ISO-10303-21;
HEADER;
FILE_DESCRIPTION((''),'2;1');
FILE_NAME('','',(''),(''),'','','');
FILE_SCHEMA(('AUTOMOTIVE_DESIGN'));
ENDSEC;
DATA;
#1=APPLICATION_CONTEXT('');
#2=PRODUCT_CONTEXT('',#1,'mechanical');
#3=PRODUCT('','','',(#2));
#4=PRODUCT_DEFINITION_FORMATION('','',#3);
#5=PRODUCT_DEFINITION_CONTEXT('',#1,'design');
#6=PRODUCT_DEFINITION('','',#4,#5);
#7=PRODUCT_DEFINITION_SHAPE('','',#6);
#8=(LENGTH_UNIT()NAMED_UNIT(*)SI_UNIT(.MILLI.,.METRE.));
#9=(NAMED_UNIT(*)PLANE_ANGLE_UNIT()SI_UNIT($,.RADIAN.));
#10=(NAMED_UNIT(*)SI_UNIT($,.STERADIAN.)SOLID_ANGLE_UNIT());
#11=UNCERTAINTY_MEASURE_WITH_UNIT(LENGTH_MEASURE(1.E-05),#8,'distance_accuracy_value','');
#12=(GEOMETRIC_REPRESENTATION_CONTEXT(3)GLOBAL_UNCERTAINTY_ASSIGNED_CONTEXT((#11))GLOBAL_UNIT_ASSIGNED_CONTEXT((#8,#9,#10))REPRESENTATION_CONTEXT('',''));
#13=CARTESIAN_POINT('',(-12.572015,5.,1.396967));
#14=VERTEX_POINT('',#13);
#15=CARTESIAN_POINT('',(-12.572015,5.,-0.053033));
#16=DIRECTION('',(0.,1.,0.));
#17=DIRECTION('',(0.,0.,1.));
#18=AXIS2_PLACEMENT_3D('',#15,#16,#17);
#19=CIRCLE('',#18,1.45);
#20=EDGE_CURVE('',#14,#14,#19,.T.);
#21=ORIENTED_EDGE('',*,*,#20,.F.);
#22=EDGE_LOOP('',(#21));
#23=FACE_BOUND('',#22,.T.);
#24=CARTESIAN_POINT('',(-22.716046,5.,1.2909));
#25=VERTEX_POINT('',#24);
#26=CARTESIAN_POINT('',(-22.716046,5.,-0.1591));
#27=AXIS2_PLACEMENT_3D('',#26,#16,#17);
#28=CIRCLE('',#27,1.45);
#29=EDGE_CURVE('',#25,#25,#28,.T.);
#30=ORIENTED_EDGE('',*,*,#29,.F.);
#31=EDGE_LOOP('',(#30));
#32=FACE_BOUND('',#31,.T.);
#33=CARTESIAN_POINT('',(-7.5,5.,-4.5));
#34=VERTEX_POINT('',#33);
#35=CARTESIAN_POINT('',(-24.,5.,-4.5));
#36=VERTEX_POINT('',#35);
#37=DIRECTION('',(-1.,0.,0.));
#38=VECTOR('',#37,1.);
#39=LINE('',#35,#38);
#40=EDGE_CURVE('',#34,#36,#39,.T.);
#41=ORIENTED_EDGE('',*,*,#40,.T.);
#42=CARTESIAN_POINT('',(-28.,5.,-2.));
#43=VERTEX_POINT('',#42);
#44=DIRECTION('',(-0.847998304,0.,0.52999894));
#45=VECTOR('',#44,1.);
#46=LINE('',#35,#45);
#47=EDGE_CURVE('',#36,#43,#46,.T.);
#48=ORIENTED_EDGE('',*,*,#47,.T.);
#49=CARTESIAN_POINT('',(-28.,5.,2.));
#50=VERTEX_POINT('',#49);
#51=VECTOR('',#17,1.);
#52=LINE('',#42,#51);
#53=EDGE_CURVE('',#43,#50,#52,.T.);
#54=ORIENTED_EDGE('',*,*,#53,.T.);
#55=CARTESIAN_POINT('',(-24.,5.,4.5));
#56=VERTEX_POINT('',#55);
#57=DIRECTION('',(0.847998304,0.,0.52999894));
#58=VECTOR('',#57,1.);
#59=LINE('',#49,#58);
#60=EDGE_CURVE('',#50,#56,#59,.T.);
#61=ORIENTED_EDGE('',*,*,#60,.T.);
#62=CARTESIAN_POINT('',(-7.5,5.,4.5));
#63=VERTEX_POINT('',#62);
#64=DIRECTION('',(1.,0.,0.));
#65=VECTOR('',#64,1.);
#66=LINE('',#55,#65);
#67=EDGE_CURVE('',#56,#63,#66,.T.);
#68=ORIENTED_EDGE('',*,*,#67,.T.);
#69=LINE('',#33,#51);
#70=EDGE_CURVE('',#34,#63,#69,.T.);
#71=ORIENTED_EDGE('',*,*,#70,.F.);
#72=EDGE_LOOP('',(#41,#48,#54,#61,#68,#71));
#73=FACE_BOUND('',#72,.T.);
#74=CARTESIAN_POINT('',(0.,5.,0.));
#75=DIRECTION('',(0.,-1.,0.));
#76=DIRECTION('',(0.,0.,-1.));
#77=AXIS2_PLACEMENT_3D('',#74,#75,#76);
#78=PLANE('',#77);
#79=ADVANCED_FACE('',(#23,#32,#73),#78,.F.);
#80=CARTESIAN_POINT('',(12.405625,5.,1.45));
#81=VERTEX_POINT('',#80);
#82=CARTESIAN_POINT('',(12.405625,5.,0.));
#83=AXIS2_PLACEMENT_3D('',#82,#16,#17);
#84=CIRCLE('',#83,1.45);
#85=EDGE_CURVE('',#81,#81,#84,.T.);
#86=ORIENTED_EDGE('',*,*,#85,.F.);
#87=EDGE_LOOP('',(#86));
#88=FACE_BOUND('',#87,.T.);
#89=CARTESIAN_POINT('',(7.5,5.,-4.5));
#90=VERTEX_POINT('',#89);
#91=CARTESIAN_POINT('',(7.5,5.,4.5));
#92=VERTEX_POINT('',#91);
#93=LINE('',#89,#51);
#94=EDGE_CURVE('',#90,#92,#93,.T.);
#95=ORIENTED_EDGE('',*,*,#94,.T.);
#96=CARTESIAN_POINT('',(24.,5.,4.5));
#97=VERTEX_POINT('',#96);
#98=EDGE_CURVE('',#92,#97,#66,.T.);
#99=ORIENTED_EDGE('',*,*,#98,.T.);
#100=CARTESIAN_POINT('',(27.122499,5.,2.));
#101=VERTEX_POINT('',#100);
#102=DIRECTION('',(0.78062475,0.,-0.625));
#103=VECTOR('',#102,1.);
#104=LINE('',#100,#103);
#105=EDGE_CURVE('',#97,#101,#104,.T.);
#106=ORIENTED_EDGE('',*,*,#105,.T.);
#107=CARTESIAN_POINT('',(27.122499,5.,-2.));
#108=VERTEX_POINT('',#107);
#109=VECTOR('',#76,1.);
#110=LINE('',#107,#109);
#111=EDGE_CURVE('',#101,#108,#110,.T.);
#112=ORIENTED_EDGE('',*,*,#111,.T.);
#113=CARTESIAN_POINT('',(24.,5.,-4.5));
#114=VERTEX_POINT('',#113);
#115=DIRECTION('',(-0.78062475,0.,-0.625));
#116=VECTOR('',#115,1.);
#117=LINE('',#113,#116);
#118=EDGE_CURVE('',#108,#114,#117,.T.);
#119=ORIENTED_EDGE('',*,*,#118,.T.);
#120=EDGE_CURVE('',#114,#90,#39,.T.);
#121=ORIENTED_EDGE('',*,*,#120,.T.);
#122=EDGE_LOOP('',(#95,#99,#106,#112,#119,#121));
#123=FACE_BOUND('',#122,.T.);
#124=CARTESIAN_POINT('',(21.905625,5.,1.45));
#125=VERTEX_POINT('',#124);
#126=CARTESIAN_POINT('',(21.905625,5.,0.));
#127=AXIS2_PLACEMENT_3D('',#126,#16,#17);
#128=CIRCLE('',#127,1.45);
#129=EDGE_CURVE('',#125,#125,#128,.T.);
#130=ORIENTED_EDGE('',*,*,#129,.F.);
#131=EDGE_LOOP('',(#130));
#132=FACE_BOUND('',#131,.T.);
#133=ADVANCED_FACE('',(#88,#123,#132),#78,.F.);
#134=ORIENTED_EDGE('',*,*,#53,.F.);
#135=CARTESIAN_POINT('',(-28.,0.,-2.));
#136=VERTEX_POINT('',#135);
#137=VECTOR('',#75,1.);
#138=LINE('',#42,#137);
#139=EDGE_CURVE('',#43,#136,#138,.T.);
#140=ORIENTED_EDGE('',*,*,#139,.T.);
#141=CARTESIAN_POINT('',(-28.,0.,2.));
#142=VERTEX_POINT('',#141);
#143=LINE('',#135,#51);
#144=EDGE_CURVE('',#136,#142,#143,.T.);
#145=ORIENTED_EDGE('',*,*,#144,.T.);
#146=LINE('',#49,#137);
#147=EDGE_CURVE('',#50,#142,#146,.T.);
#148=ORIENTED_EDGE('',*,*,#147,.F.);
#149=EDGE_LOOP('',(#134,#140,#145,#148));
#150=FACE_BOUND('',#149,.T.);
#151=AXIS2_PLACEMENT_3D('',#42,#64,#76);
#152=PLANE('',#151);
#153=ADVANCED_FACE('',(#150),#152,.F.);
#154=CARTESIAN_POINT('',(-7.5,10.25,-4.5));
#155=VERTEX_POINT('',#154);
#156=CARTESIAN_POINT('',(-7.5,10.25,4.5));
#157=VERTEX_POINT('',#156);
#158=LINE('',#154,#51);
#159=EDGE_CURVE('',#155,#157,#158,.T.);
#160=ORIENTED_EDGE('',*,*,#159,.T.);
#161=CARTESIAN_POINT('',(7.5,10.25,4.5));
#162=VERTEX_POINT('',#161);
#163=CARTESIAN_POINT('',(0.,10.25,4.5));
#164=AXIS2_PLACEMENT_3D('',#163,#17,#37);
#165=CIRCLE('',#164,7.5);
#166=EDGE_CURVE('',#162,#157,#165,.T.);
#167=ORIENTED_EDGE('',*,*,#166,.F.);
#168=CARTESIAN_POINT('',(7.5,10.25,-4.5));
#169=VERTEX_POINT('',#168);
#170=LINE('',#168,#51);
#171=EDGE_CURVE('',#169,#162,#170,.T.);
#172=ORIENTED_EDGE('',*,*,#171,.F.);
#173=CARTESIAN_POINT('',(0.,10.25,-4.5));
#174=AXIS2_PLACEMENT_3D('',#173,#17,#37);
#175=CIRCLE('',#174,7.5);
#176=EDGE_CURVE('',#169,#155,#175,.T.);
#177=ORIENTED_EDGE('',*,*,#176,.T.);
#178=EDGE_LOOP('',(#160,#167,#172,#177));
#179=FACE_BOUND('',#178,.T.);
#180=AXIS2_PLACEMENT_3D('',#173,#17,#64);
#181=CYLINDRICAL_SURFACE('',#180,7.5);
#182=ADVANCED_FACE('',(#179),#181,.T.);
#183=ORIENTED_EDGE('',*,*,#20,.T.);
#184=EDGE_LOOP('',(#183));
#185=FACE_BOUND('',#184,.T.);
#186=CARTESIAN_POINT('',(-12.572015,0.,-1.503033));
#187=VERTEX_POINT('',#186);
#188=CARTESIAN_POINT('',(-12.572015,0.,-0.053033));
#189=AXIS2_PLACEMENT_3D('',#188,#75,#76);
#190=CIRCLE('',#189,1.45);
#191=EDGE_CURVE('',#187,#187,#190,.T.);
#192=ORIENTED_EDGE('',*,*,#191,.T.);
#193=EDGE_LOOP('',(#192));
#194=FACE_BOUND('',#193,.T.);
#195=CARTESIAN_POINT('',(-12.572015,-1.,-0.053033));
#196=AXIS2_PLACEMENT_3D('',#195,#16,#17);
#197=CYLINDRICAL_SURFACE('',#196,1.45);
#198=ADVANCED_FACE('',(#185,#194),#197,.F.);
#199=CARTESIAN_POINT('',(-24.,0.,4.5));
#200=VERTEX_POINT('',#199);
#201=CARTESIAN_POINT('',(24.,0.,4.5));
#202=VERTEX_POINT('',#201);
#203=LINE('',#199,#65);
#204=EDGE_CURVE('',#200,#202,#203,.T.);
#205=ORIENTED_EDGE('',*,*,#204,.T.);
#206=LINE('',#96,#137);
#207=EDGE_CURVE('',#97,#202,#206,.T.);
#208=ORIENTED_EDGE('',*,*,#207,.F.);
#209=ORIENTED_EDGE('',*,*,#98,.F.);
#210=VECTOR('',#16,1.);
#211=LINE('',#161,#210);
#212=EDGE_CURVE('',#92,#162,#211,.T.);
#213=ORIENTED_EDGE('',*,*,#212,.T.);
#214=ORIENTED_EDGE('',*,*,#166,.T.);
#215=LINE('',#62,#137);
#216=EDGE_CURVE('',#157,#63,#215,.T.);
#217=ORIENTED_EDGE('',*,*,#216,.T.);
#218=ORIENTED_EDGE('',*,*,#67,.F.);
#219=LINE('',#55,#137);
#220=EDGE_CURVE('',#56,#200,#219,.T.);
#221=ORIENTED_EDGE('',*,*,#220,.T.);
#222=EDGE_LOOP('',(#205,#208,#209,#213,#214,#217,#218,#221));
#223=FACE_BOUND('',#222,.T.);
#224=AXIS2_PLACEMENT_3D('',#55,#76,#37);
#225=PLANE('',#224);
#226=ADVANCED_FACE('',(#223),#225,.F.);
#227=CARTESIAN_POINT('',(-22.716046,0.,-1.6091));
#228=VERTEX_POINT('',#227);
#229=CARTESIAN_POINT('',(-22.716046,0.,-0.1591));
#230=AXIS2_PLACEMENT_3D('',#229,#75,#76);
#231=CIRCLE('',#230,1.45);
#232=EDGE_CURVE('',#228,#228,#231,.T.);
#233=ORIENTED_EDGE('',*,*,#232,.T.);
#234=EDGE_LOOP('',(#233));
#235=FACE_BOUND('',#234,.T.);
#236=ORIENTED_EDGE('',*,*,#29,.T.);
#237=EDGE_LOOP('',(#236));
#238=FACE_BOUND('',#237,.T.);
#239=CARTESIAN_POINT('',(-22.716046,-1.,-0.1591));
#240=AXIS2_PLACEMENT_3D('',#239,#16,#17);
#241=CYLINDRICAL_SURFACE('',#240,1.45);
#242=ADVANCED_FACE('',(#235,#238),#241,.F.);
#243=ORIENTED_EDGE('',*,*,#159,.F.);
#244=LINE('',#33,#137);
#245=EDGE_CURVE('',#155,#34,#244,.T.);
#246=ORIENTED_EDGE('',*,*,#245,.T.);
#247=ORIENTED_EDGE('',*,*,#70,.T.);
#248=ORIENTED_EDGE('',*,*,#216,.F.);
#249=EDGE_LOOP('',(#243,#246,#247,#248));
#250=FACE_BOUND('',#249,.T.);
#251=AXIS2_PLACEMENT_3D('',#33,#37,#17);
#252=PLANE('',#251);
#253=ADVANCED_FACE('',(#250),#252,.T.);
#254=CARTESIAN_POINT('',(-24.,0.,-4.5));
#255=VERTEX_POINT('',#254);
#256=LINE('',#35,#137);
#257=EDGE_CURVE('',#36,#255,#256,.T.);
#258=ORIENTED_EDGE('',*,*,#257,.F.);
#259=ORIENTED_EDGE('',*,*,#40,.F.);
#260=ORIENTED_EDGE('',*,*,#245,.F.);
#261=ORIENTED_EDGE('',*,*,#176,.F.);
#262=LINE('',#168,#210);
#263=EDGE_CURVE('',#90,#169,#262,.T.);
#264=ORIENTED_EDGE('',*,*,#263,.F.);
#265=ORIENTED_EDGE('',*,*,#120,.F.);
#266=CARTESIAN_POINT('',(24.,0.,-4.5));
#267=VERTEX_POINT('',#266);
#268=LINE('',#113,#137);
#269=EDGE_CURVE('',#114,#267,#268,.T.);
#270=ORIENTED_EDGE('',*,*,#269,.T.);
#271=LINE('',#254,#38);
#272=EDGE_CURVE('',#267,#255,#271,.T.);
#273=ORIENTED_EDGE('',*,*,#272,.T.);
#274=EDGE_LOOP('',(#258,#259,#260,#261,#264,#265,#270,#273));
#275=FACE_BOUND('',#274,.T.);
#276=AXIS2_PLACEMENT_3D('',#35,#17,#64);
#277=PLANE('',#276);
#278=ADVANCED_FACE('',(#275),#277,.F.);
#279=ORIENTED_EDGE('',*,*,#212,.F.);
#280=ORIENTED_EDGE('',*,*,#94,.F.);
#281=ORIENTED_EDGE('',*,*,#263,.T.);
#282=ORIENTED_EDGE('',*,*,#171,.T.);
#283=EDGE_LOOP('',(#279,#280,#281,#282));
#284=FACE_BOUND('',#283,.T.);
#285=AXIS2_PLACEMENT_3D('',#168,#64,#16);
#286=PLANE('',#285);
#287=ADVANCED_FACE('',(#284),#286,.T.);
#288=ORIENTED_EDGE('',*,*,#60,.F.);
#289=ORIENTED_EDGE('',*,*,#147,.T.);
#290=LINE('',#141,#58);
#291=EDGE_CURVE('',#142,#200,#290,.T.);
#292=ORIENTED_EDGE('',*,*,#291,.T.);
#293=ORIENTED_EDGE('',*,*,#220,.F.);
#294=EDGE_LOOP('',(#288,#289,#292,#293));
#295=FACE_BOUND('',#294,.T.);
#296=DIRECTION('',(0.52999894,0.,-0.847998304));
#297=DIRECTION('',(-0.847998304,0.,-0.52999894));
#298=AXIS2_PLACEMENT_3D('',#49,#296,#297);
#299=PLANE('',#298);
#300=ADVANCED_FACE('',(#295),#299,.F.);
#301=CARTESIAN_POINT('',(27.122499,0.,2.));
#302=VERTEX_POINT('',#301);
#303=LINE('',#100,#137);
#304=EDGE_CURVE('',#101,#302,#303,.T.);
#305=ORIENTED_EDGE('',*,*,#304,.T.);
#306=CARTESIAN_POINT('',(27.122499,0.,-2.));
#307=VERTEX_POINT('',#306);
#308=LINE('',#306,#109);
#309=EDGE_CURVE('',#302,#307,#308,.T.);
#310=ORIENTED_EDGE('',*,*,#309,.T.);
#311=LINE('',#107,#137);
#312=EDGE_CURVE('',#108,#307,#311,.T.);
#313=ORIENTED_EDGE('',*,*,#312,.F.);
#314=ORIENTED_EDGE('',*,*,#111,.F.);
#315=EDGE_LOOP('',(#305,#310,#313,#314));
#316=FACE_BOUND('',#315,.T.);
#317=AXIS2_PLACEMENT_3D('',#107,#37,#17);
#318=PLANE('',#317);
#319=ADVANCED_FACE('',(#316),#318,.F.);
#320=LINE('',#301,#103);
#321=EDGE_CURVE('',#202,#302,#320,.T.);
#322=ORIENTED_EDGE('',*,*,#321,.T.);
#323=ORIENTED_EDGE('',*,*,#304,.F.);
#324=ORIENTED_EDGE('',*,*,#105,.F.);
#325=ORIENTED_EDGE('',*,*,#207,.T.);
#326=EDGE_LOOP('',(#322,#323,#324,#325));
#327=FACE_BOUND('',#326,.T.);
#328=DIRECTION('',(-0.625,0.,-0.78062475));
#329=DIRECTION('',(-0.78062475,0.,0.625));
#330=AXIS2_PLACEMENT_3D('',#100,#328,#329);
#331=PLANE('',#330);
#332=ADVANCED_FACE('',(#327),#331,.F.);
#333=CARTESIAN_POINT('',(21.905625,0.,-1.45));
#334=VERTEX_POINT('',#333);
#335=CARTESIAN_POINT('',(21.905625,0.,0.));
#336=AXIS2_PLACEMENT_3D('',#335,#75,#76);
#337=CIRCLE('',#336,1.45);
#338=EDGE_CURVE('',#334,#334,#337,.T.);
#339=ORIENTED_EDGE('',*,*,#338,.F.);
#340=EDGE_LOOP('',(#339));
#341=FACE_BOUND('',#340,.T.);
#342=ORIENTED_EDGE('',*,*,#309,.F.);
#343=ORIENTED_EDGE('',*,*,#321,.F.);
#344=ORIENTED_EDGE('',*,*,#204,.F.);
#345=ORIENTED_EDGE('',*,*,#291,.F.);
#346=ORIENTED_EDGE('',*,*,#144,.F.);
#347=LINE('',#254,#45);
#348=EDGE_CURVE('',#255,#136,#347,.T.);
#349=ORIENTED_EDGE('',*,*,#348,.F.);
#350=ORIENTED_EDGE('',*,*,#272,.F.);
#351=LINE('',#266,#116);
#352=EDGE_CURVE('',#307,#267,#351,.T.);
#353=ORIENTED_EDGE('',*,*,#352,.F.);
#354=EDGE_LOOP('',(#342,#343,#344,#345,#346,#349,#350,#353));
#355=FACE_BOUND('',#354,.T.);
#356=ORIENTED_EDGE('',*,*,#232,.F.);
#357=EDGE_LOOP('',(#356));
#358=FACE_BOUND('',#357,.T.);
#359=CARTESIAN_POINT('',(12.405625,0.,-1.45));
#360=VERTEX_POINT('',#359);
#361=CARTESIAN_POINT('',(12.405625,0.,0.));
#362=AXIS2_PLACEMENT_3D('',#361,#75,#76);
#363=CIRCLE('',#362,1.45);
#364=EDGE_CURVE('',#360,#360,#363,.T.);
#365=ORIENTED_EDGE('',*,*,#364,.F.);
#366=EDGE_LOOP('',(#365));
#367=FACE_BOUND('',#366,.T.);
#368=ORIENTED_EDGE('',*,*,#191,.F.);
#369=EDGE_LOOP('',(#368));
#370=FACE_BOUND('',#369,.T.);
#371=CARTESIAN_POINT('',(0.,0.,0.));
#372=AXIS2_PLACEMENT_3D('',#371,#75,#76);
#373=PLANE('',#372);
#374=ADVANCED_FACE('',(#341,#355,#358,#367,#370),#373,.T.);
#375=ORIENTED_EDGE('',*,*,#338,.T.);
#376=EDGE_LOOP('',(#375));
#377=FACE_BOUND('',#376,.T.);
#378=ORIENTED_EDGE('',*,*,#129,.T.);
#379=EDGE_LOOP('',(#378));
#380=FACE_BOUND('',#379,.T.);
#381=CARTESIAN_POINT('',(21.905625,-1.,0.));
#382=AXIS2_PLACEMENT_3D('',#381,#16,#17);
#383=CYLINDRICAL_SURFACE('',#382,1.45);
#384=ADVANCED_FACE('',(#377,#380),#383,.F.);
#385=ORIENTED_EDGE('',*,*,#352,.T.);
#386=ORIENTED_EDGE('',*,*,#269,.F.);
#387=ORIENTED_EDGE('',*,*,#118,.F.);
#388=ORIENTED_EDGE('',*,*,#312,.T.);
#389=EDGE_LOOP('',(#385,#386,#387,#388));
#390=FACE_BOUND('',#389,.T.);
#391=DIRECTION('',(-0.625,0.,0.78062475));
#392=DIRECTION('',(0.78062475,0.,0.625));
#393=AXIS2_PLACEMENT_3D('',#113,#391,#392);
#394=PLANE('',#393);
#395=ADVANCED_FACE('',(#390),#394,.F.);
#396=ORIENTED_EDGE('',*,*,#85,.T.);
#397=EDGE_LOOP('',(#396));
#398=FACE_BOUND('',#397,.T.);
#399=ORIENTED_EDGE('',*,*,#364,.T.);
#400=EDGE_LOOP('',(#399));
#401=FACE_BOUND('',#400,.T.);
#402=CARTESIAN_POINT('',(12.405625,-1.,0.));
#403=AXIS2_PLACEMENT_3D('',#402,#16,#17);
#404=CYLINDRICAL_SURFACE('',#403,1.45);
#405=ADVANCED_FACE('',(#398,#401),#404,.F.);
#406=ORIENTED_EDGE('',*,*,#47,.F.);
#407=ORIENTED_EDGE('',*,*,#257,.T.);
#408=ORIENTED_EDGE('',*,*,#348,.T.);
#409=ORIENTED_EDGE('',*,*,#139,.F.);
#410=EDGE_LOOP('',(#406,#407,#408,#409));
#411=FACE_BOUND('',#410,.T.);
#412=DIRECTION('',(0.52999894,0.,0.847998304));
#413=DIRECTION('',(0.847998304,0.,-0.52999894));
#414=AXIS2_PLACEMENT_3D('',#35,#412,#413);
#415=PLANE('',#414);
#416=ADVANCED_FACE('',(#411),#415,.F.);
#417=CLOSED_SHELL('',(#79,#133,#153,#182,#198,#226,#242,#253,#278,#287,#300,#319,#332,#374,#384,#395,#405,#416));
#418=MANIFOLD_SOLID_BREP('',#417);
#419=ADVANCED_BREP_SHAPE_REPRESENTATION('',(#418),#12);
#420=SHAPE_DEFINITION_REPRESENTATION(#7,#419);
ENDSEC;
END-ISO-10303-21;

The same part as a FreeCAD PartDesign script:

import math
import FreeCAD as App
import Part
import Sketcher

V = App.Vector
Q = App.Units.Quantity

doc = App.newDocument("Part")
body = doc.addObject("PartDesign::Body", "Body")

sketch1 = doc.addObject("Sketcher::SketchObject", "Sketch")
body.addObject(sketch1)
sketch1.AttachmentSupport = (doc.XZ_Plane, [""])
sketch1.MapMode = "FlatFace"
sketch1.addGeometry([
    Part.LineSegment(V(27.1, -2, 0), V(24, -4.5, 0)),
    Part.LineSegment(V(24, -4.5, 0), V(-24, -4.5, 0)),
    Part.LineSegment(V(-24, -4.5, 0), V(-28, -2, 0)),
    Part.LineSegment(V(-28, -2, 0), V(-28, 2, 0)),
    Part.LineSegment(V(-28, 2, 0), V(-24, 4.5, 0)),
    Part.LineSegment(V(-24, 4.5, 0), V(24, 4.5, 0)),
    Part.LineSegment(V(24, 4.5, 0), V(27.1, 2, 0)),
    Part.LineSegment(V(27.1, 2, 0), V(27.1, -2, 0)),
], False)
sketch1.addConstraint([
    Sketcher.Constraint("Coincident", 0, 2, 1, 1),
    Sketcher.Constraint("Coincident", 1, 2, 2, 1),
    Sketcher.Constraint("Coincident", 2, 2, 3, 1),
    Sketcher.Constraint("Coincident", 3, 2, 4, 1),
    Sketcher.Constraint("Coincident", 4, 2, 5, 1),
    Sketcher.Constraint("Coincident", 5, 2, 6, 1),
    Sketcher.Constraint("Coincident", 6, 2, 7, 1),
    Sketcher.Constraint("Coincident", 7, 2, 0, 1),
    Sketcher.Constraint("Horizontal", 1),
    Sketcher.Constraint("Vertical", 3),
    Sketcher.Constraint("Horizontal", 5),
    Sketcher.Constraint("Vertical", 7),
    Sketcher.Constraint("Symmetric", 0, 2, 4, 2, -1, 1),
    Sketcher.Constraint("Horizontal", 3, 2, 6, 2),
    Sketcher.Constraint("Horizontal", 2, 2, 7, 2),
    Sketcher.Constraint("Vertical", 1, 2, 4, 2),
    Sketcher.Constraint("Vertical", 0, 2, 5, 2),
    Sketcher.Constraint("Equal", 2, 4),
    Sketcher.Constraint("DistanceX", 1, 2, 1, 1, Q("48 mm")),
    Sketcher.Constraint("DistanceY", 3, 1, 3, 2, Q("4 mm")),
    Sketcher.Constraint("Distance", 0, Q("4 mm")),
    Sketcher.Constraint("DistanceX", 2, 2, -1, 1, Q("28 mm")),
    Sketcher.Constraint("DistanceY", 1, 2, 4, 2, Q("9 mm")),
])
pad1 = doc.addObject("PartDesign::Pad", "Pad")
body.addObject(pad1)
pad1.Profile = sketch1
pad1.Length = 5
pad1.Reversed = True

sketch2 = doc.addObject("Sketcher::SketchObject", "Sketch001")
body.addObject(sketch2)
sketch2.AttachmentSupport = (doc.XY_Plane, [""])
sketch2.MapMode = "FlatFace"
sketch2.AttachmentOffset = App.Placement(V(0, 0, 4.5), App.Rotation())
sketch2.addGeometry([
    Part.LineSegment(V(-8, 5, 0), V(8, 5, 0)),
    Part.LineSegment(V(8, 5, 0), V(8, 10, 0)),
    Part.ArcOfCircle(Part.Circle(V(0, 10, 0), V(0, 0, 1), 8), math.radians(0), math.radians(180)),
    Part.LineSegment(V(-8, 10, 0), V(-8, 5, 0)),
], False)
sketch2.addConstraint([
    Sketcher.Constraint("Coincident", 0, 2, 1, 1),
    Sketcher.Constraint("Tangent", 1, 2, 2, 1),
    Sketcher.Constraint("Tangent", 2, 2, 3, 1),
    Sketcher.Constraint("Coincident", 3, 2, 0, 1),
    Sketcher.Constraint("Horizontal", 0),
    Sketcher.Constraint("Vertical", 1),
    Sketcher.Constraint("Vertical", 3),
    Sketcher.Constraint("PointOnObject", 2, 3, -2),
    Sketcher.Constraint("Radius", 2, Q("7.5 mm")),
    Sketcher.Constraint("DistanceY", -1, 1, 0, 2, Q("5 mm")),
    Sketcher.Constraint("DistanceY", 1, 1, 1, 2, Q("5.25 mm")),
])
pad2 = doc.addObject("PartDesign::Pad", "Pad001")
body.addObject(pad2)
pad2.Profile = sketch2
pad2.Length = 9
pad2.Reversed = True

sketch3 = doc.addObject("Sketcher::SketchObject", "Sketch002")
body.addObject(sketch3)
sketch3.AttachmentSupport = (doc.XZ_Plane, [""])
sketch3.MapMode = "FlatFace"
sketch3.AttachmentOffset = App.Placement(V(0, 0, -5), App.Rotation())
sketch3.addGeometry([
    Part.Circle(V(12.4, 0, 0), V(0, 0, 1), 1.4),
    Part.Circle(V(21.9, 0, 0), V(0, 0, 1), 1.4),
    Part.Circle(V(-12.6, -0.1, 0), V(0, 0, 1), 1.4),
    Part.Circle(V(-22.7, -0.2, 0), V(0, 0, 1), 1.4),
], False)
sketch3.addConstraint([
    Sketcher.Constraint("Equal", 0, 1),
    Sketcher.Constraint("Equal", 1, 2),
    Sketcher.Constraint("Equal", 2, 3),
    Sketcher.Constraint("PointOnObject", 0, 3, -1),
    Sketcher.Constraint("PointOnObject", 1, 3, -1),
    Sketcher.Constraint("Diameter", 0, Q("2.9 mm")),
    Sketcher.Constraint("DistanceX", 0, 3, 1, 3, Q("9.5 mm")),
    Sketcher.Constraint("DistanceY", 3, 3, -1, 1, Q("0.1591 mm")),
    Sketcher.Constraint("DistanceX", 2, 3, 0, 3, Q("24.97764 mm")),
    Sketcher.Constraint("DistanceX", 3, 3, 2, 3, Q("10.144031 mm")),
    Sketcher.Constraint("DistanceX", -1, 1, 0, 3, Q("12.405625 mm")),
    Sketcher.Constraint("DistanceY", 2, 3, -1, 1, Q("0.053033 mm")),
])
pocket1 = doc.addObject("PartDesign::Pocket", "Pocket")
body.addObject(pocket1)
pocket1.Profile = sketch3
pocket1.Length = 6
pocket1.Reversed = True

doc.recompute()
